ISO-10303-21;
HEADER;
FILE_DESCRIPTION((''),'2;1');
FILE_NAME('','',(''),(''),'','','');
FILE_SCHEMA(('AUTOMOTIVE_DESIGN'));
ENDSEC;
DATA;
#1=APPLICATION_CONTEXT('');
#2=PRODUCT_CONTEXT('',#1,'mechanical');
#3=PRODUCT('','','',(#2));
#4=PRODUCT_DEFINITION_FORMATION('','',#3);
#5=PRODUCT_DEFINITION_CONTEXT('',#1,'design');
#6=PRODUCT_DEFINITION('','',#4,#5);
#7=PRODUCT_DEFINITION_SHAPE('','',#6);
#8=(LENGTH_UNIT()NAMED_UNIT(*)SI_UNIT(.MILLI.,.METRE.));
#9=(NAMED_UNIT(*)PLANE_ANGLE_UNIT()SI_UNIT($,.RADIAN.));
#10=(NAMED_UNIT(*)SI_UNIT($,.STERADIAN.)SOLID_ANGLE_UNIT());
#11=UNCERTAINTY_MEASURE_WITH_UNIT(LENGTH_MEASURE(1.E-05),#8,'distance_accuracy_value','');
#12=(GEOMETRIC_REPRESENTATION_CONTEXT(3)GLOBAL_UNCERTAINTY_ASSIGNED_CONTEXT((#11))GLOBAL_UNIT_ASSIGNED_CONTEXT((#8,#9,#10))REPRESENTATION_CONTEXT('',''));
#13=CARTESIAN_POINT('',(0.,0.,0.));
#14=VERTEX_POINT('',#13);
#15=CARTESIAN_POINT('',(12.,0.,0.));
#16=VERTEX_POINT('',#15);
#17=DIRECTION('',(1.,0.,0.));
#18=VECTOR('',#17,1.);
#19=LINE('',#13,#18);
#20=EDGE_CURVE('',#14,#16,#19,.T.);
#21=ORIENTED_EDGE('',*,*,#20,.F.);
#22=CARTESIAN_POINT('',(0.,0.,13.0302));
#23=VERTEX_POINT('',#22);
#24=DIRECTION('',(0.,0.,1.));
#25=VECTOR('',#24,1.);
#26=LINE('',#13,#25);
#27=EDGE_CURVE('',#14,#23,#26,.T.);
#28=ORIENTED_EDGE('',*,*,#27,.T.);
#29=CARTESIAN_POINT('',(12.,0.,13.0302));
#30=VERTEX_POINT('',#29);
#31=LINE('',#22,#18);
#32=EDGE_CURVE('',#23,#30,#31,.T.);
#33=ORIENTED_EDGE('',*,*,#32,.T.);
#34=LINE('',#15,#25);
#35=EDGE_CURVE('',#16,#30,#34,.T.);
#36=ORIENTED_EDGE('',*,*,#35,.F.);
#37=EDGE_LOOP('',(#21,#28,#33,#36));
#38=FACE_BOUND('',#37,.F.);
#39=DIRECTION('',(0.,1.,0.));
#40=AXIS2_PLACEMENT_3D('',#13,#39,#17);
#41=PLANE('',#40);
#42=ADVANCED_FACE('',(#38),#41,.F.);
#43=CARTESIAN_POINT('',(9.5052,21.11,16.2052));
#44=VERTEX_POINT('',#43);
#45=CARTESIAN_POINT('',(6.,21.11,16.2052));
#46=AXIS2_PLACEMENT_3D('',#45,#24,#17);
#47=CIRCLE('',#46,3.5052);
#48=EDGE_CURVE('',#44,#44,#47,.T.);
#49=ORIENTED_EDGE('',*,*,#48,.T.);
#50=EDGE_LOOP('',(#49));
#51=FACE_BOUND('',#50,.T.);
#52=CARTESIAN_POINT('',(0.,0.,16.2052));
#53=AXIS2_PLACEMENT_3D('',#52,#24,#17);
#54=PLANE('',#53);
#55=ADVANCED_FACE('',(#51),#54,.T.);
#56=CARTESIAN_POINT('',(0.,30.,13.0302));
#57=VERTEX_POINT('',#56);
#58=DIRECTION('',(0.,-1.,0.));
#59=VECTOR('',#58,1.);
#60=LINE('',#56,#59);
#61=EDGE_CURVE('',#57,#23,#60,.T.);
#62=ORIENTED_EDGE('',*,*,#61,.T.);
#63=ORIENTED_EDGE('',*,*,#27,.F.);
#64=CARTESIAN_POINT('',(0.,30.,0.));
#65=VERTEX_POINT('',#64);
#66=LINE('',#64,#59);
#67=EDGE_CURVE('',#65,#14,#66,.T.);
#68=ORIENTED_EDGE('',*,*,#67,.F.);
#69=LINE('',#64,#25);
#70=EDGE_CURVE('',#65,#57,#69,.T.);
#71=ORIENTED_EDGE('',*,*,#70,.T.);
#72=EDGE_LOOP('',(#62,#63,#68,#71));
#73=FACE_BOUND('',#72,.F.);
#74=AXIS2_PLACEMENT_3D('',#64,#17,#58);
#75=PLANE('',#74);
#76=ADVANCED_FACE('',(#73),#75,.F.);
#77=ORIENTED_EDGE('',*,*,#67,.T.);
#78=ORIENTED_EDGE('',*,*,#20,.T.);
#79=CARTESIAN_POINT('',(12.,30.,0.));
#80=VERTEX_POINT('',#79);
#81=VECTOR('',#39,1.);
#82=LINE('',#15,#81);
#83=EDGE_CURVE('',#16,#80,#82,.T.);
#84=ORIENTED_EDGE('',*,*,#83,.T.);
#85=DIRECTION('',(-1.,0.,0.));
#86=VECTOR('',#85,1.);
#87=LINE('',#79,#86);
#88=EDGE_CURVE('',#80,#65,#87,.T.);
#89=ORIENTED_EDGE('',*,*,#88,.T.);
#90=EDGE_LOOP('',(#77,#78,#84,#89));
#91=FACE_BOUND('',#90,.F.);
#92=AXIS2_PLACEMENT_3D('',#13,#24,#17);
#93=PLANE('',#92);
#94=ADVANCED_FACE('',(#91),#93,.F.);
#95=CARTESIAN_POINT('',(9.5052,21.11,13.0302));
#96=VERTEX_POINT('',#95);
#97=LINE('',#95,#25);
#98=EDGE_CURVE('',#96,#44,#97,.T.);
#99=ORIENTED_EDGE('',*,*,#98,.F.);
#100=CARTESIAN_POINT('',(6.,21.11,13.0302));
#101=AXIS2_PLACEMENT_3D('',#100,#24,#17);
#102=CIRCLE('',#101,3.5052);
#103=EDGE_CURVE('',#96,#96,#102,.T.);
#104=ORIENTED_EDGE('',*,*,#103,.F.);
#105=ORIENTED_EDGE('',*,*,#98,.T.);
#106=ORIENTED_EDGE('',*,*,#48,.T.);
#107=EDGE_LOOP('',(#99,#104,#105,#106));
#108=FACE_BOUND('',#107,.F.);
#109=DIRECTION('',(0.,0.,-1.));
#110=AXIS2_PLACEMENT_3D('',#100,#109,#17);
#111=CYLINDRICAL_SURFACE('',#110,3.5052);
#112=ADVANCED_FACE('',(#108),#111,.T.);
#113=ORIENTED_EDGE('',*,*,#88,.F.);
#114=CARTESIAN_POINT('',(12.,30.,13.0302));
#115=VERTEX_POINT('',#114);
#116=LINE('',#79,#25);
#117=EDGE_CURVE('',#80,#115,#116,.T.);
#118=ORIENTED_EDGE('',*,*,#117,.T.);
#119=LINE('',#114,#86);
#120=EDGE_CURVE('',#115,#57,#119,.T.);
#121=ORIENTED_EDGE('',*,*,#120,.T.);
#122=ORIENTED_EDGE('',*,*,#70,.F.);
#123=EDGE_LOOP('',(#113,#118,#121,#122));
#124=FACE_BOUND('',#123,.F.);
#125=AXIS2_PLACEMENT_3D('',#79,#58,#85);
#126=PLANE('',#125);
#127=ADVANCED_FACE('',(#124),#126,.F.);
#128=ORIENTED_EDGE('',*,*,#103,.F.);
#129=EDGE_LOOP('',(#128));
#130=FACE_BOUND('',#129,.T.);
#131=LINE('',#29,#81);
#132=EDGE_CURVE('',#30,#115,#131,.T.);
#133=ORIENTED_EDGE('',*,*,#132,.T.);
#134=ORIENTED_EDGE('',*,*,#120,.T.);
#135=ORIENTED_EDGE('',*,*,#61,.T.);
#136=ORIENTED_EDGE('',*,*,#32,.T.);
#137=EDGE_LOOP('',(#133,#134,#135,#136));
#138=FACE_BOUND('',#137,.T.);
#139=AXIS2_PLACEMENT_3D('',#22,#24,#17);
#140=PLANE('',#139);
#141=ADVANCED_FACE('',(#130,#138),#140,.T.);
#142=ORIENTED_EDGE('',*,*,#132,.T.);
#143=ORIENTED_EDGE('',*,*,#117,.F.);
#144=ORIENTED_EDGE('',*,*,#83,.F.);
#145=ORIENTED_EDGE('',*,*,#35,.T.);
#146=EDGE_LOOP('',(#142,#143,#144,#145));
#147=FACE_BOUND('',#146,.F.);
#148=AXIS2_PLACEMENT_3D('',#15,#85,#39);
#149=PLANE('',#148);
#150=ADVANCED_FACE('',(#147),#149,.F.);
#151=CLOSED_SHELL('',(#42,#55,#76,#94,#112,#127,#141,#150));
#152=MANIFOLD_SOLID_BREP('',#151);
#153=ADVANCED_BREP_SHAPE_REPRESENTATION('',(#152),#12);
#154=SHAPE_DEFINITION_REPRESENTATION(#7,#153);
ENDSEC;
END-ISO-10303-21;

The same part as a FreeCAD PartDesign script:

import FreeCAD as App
import Part
import Sketcher

V = App.Vector
Q = App.Units.Quantity

doc = App.newDocument("Part")
params = doc.addObject("Spreadsheet::Sheet", "Params")
for row, (alias, value) in enumerate([
    ("pad1_length", "0.513 in"),
    ("sketch2_diameter", "0.276 in"),
    ("pad2_length", "0.125 in"),
], start=1):
    params.set(f"A{row}", alias)
    params.set(f"B{row}", "=" + value)
    params.setAlias(f"B{row}", alias)

body = doc.addObject("PartDesign::Body", "Body")

sketch1 = body.newObject("Sketcher::SketchObject", "Sketch")
sketch1.AttachmentSupport = (doc.getObject("XY_Plane"), [""])
sketch1.MapMode = "FlatFace"
sketch1.addGeometry([
    Part.LineSegment(V(0, 30, 0), V(0, 0, 0)),
    Part.LineSegment(V(0, 0, 0), V(12, 0, 0)),
    Part.LineSegment(V(12, 0, 0), V(12, 30, 0)),
    Part.LineSegment(V(12, 30, 0), V(0, 30, 0)),
], False)
sketch1.addConstraint([
    Sketcher.Constraint("Coincident", 0, 2, 1, 1),
    Sketcher.Constraint("Coincident", 1, 2, 2, 1),
    Sketcher.Constraint("Coincident", 2, 2, 3, 1),
    Sketcher.Constraint("Coincident", 3, 2, 0, 1),
    Sketcher.Constraint("Vertical", 0),
    Sketcher.Constraint("Horizontal", 1),
    Sketcher.Constraint("Vertical", 2),
    Sketcher.Constraint("Horizontal", 3),
    Sketcher.Constraint("Coincident", 0, 2, -1, 1),
    Sketcher.Constraint("DistanceY", 0, 2, 0, 1, Q("1.1811 in")),
    Sketcher.Constraint("DistanceX", 1, 1, 1, 2, Q("12 mm")),
])
pad1 = body.newObject("PartDesign::Pad", "Pad")
pad1.Profile = sketch1
pad1.setExpression("Length", "Params.pad1_length")

sketch2 = body.newObject("Sketcher::SketchObject", "Sketch001")
sketch2.AttachmentSupport = (doc.getObject("XY_Plane"), [""])
sketch2.MapMode = "FlatFace"
sketch2.AttachmentOffset = App.Placement(V(0, 0, 0.513 * 25.4), App.Rotation())
sketch2.addGeometry(Part.Circle(V(6, 21.11, 0), V(0, 0, 1), 3.5052), False)
sketch2.addConstraint([
    Sketcher.Constraint("Diameter", 0, Q("0.276 in")),
    Sketcher.Constraint("DistanceX", -1, 1, 0, 3, Q("6 mm")),
    Sketcher.Constraint("DistanceY", -1, 1, 0, 3, Q("0.8311 in")),
])
sketch2.setExpression("Constraints[0]", "Params.sketch2_diameter")
pad2 = body.newObject("PartDesign::Pad", "Pad001")
pad2.Profile = sketch2
pad2.setExpression("Length", "Params.pad2_length")

doc.recompute()
